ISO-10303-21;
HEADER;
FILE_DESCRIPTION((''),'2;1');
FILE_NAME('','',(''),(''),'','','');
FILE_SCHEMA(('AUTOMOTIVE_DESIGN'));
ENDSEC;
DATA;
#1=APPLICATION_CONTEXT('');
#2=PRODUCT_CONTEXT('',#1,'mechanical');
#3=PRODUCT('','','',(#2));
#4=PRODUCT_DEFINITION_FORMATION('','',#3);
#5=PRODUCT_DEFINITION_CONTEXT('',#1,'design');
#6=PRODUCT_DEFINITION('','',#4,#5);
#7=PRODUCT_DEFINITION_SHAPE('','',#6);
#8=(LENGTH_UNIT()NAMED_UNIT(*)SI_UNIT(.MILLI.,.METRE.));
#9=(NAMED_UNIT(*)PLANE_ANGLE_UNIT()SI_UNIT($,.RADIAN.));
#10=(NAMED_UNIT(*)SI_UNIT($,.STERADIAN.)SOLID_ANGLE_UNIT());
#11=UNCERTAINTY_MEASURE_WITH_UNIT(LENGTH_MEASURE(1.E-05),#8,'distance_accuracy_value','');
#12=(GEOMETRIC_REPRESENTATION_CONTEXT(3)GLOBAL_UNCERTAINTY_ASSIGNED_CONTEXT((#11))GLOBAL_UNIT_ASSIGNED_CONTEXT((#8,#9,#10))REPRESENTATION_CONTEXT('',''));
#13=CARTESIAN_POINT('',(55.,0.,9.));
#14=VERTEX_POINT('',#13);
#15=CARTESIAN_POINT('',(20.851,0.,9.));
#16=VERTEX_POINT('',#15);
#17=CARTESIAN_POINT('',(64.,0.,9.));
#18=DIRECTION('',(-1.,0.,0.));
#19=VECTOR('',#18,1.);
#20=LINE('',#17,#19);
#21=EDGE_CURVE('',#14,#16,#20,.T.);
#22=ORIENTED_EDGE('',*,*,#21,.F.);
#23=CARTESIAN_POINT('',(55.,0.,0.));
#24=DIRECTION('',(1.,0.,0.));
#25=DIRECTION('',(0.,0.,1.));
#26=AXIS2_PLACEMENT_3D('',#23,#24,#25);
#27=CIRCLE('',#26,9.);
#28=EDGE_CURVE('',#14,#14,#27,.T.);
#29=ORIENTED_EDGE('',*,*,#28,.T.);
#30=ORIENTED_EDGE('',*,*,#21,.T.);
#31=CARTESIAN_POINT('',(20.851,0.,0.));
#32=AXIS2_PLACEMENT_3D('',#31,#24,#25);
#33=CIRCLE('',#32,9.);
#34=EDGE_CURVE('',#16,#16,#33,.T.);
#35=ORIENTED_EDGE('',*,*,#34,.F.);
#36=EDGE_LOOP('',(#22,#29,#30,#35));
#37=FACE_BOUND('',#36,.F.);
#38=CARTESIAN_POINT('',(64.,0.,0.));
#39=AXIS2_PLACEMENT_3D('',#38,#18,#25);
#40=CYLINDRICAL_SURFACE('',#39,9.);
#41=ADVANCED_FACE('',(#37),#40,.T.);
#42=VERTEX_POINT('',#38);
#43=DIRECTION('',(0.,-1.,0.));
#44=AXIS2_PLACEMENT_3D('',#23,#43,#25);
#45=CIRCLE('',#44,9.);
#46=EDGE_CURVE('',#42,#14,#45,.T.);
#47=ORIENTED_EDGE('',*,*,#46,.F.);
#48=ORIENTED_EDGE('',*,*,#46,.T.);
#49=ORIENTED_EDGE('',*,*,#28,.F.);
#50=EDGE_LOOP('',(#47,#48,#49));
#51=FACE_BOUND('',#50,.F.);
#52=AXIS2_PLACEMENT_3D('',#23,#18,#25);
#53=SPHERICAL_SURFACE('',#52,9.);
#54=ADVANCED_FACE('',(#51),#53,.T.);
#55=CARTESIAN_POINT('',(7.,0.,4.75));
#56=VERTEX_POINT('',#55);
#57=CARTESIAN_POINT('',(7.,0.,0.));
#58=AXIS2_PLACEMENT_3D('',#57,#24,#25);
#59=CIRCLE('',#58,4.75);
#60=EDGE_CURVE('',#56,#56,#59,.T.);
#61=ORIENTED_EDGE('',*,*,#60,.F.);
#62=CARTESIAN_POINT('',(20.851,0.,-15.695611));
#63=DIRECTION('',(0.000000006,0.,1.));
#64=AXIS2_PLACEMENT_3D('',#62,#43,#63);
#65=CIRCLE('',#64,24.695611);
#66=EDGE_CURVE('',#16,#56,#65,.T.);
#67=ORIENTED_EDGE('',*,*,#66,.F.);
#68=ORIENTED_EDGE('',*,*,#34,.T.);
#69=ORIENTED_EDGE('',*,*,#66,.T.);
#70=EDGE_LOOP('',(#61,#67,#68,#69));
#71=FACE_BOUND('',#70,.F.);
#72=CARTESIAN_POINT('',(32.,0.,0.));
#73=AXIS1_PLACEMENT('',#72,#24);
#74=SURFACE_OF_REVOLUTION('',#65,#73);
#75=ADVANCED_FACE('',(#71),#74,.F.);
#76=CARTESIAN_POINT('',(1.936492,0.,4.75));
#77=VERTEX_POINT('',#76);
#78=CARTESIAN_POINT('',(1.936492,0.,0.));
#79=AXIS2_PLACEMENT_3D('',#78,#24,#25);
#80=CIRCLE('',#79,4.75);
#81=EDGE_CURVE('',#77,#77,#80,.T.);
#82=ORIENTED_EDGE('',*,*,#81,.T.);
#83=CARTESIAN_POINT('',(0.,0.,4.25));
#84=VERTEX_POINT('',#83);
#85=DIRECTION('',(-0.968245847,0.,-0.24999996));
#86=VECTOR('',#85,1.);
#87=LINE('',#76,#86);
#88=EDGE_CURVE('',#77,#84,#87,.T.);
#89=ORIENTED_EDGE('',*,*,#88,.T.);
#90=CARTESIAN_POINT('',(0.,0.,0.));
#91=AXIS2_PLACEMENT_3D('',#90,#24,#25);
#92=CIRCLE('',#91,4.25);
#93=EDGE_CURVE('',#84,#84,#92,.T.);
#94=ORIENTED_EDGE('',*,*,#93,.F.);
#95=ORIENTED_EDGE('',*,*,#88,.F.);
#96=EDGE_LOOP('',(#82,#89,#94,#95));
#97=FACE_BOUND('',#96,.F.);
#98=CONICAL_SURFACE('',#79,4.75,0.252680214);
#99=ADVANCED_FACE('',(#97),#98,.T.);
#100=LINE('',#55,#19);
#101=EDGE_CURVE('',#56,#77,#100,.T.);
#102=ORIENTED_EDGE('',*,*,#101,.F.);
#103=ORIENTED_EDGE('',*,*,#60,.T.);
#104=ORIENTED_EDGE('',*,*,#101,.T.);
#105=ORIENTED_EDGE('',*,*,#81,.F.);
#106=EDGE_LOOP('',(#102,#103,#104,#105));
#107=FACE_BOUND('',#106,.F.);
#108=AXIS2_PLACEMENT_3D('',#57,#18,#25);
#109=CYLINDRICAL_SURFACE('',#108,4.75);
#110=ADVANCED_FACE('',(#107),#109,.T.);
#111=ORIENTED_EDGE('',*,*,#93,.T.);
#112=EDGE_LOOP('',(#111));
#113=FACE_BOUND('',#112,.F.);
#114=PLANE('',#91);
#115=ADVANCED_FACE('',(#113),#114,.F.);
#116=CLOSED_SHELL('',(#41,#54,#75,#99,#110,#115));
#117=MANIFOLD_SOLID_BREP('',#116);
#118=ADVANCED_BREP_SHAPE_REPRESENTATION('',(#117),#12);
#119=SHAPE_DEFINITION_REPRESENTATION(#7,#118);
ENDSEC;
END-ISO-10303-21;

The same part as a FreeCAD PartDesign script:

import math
import FreeCAD as App
import Part
import Sketcher
Q = App.Units.Quantity


def edges_at(feature, points):
    """Names of the edges that pass closest to the given points."""
    edges = feature.Shape.Edges
    near = lambda p: min(range(len(edges)), key=lambda i: edges[i].distToShape(Part.Vertex(*p))[0])
    return sorted({f"Edge{near(p) + 1}" for p in points})

doc = App.newDocument("Part")
body = doc.addObject("PartDesign::Body", "Body")

sketch1 = body.newObject("Sketcher::SketchObject", "Sketch")
sketch1.AttachmentSupport = (doc.getObject("XZ_Plane"), [""])
sketch1.MapMode = "FlatFace"
sketch1.addGeometry(Part.LineSegment(App.Vector(0, 4.2, 0), App.Vector(0, 0, 0)), False)
sketch1.addGeometry(Part.LineSegment(App.Vector(0, 0, 0), App.Vector(64, 0, 0)), False)
sketch1.addGeometry(Part.LineSegment(App.Vector(64, 0, 0), App.Vector(64, 9, 0)), False)
sketch1.addGeometry(Part.LineSegment(App.Vector(64, 9, 0), App.Vector(20.9, 9, 0)), False)
sketch1.addGeometry(Part.ArcOfCircle(Part.Circle(App.Vector(20.9, -15.7, 0), App.Vector(0, 0, 1), 24.7), math.radians(90), math.radians(124)), False)
sketch1.addGeometry(Part.LineSegment(App.Vector(7, 4.8, 0), App.Vector(1.9, 4.8, 0)), False)
sketch1.addGeometry(Part.LineSegment(App.Vector(1.9, 4.8, 0), App.Vector(0, 4.2, 0)), False)
sketch1.addConstraint(Sketcher.Constraint("Coincident", 0, 2, 1, 1))
sketch1.addConstraint(Sketcher.Constraint("Coincident", 1, 2, 2, 1))
sketch1.addConstraint(Sketcher.Constraint("Coincident", 2, 2, 3, 1))
sketch1.addConstraint(Sketcher.Constraint("Tangent", 3, 2, 4, 1))
sketch1.addConstraint(Sketcher.Constraint("Coincident", 4, 2, 5, 1))
sketch1.addConstraint(Sketcher.Constraint("Coincident", 5, 2, 6, 1))
sketch1.addConstraint(Sketcher.Constraint("Coincident", 6, 2, 0, 1))
sketch1.addConstraint(Sketcher.Constraint("Vertical", 0))
sketch1.addConstraint(Sketcher.Constraint("Horizontal", 1))
sketch1.addConstraint(Sketcher.Constraint("Vertical", 2))
sketch1.addConstraint(Sketcher.Constraint("Horizontal", 3))
sketch1.addConstraint(Sketcher.Constraint("Horizontal", 5))
sketch1.addConstraint(Sketcher.Constraint("Coincident", 0, 2, -1, 1))
sketch1.addConstraint(Sketcher.Constraint("DistanceX", 1, 1, 1, 2, Q("64 mm")))
sketch1.addConstraint(Sketcher.Constraint("DistanceY", 2, 1, 2, 2, Q("9 mm")))
sketch1.addConstraint(Sketcher.Constraint("Distance", 6, Q("2 mm")))
sketch1.addConstraint(Sketcher.Constraint("DistanceX", -1, 1, 4, 2, Q("7 mm")))
sketch1.addConstraint(Sketcher.Constraint("DistanceY", 0, 2, 0, 1, Q("4.25 mm")))
sketch1.addConstraint(Sketcher.Constraint("DistanceY", 6, 2, 5, 2, Q("0.5 mm")))
sketch1.addConstraint(Sketcher.Constraint("DistanceX", 3, 2, 3, 1, Q("43.149 mm")))
revolution = body.newObject("PartDesign::Revolution", "Revolution")
revolution.Profile = sketch1
revolution.ReferenceAxis = (sketch1, ["H_Axis"])
revolution.Angle = 360
doc.recompute()

fillet = body.newObject("PartDesign::Fillet", "Fillet")
fillet.Base = (revolution, edges_at(revolution, [(64, 0, -9)]))
fillet.Radius = 9

doc.recompute()
